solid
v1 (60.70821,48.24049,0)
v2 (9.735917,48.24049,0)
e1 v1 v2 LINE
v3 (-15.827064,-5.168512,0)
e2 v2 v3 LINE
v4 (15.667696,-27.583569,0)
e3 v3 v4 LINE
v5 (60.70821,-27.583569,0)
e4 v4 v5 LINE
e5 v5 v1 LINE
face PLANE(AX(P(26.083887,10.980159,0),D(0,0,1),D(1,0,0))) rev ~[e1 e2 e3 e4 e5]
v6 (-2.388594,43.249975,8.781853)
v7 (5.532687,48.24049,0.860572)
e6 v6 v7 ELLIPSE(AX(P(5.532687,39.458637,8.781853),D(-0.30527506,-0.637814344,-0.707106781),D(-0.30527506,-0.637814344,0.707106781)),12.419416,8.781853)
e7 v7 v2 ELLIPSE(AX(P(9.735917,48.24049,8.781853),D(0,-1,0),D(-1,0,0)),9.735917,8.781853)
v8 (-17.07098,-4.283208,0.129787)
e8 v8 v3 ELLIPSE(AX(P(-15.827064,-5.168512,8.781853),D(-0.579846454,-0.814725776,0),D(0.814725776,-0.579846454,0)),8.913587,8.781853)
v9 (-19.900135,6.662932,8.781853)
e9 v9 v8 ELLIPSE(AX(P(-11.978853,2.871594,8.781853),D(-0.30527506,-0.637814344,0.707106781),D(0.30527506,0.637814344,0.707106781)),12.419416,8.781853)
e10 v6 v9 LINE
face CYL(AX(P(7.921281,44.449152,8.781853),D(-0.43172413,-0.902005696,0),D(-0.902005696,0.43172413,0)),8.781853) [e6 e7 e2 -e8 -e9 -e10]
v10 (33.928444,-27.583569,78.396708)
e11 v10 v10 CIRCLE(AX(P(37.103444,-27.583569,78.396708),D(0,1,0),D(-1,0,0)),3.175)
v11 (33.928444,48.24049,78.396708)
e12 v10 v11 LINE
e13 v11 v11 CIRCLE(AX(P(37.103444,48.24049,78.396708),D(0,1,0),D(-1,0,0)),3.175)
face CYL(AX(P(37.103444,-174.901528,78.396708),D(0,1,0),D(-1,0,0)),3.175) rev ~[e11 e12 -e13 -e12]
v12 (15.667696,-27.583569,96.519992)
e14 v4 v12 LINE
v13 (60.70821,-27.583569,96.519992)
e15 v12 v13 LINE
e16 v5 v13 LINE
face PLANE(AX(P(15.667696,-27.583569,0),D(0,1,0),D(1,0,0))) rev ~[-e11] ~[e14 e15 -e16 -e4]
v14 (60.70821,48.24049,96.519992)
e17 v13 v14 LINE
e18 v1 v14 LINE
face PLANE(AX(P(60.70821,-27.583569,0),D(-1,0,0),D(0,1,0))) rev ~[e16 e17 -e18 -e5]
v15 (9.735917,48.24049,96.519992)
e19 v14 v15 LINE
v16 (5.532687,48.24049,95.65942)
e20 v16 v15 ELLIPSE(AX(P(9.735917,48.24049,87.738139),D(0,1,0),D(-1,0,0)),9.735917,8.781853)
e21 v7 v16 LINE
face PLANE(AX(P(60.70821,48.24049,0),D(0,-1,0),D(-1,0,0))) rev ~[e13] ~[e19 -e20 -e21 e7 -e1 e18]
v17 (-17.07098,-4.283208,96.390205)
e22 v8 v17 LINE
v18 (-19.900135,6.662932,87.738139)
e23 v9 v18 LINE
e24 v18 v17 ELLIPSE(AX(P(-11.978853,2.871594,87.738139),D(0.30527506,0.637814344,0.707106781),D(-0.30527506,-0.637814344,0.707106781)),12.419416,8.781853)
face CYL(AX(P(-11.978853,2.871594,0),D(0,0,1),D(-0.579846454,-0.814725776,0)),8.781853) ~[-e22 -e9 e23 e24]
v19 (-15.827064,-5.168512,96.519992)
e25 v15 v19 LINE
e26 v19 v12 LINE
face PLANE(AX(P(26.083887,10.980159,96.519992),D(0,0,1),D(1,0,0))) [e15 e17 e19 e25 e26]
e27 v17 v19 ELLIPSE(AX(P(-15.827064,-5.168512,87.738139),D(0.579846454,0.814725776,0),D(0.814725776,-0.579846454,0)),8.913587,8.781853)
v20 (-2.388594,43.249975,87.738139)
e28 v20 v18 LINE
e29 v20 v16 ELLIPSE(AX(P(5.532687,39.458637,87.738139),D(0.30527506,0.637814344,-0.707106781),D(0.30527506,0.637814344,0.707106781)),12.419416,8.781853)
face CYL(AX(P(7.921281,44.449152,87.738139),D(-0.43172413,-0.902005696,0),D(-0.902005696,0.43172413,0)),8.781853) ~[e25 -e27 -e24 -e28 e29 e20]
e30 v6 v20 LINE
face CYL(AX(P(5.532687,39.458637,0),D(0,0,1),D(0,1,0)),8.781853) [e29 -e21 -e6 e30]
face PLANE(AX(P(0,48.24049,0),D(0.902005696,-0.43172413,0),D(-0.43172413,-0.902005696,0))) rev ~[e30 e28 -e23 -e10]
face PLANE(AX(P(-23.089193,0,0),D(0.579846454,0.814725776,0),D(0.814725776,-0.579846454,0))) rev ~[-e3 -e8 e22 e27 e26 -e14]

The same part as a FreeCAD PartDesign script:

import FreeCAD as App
import Part
import Sketcher
from FreeCAD import Vector
Q = App.Units.Quantity


def edges_at(feature, points):
    """Names of the edges that pass closest to the given points."""
    edges = feature.Shape.Edges
    near = lambda p: min(range(len(edges)), key=lambda i: edges[i].distToShape(Part.Vertex(*p))[0])
    return sorted({f"Edge{near(p) + 1}" for p in points})

doc = App.newDocument("Part")
body = doc.addObject("PartDesign::Body", "Body")

sketch1 = body.newObject("Sketcher::SketchObject", "Sketch")
sketch1.AttachmentSupport = (doc.getObject("XY_Plane"), [""])
sketch1.MapMode = "FlatFace"
sketch1.addGeometry([
    Part.LineSegment(Vector(-23.089193, 0, 0), Vector(15.667696, -27.583569, 0)),
    Part.LineSegment(Vector(15.667696, -27.583569, 0), Vector(60.70821, -27.583569, 0)),
    Part.LineSegment(Vector(60.70821, -27.583569, 0), Vector(60.70821, 48.24049, 0)),
    Part.LineSegment(Vector(60.70821, 48.24049, 0), Vector(0, 48.24049, 0)),
    Part.LineSegment(Vector(0, 48.24049, 0), Vector(-23.089193, 0, 0)),
], False)
sketch1.addConstraint([
    Sketcher.Constraint("Coincident", 0, 2, 1, 1),
    Sketcher.Constraint("Coincident", 1, 2, 2, 1),
    Sketcher.Constraint("Coincident", 2, 2, 3, 1),
    Sketcher.Constraint("Coincident", 3, 2, 4, 1),
    Sketcher.Constraint("Coincident", 4, 2, 0, 1),
    Sketcher.Constraint("Horizontal", 1),
    Sketcher.Constraint("Vertical", 2),
    Sketcher.Constraint("Horizontal", 3),
    Sketcher.Constraint("PointOnObject", 3, 2, -2),
    Sketcher.Constraint("PointOnObject", 4, 2, -1),
    Sketcher.Constraint("DistanceX", 3, 2, 3, 1, 60.70821),
    Sketcher.Constraint("DistanceY", 2, 1, 2, 2, 75.824059),
    Sketcher.Constraint("Distance", 0, 47.570471),
    Sketcher.Constraint("Distance", 4, 53.481359),
    Sketcher.Constraint("DistanceX", 1, 1, 1, 2, 45.040514),
])
pad1 = body.newObject("PartDesign::Pad", "Pad")
pad1.Profile = sketch1
pad1.Length = 96.519992
doc.recompute()

fillet = body.newObject("PartDesign::Fillet", "Fillet")
fillet.Base = (pad1, edges_at(pad1, [
    (0, 48.24, 48.26),
    (-23.089, 0, 48.26),
    (-11.545, 24.12, 0),
    (-11.545, 24.12, 96.52),
]))
fillet.Radius = 8.781853

sketch2 = body.newObject("Sketcher::SketchObject", "Sketch001")
sketch2.AttachmentSupport = (doc.getObject("XZ_Plane"), [""])
sketch2.MapMode = "FlatFace"
sketch2.AttachmentOffset = App.Placement(Vector(0, 0, 27.583569), App.Rotation())
sketch2.addGeometry(Part.Circle(Vector(37.103444, 78.396708, 0), Vector(0, 0, 1), 3.175), False)
sketch2.addConstraint([
    Sketcher.Constraint("Diameter", 0, Q("0.25 in")),
    Sketcher.Constraint("DistanceY", -1, 1, 0, 3, 78.396708),
    Sketcher.Constraint("DistanceX", -1, 1, 0, 3, 37.103444),
])
doc.recompute()
hole = body.newObject("PartDesign::Hole", "Hole")
hole.Profile = sketch2
hole.ThreadType = "None"
hole.Diameter = Q("0.25 in")
hole.DepthType = "ThroughAll"

doc.recompute()
